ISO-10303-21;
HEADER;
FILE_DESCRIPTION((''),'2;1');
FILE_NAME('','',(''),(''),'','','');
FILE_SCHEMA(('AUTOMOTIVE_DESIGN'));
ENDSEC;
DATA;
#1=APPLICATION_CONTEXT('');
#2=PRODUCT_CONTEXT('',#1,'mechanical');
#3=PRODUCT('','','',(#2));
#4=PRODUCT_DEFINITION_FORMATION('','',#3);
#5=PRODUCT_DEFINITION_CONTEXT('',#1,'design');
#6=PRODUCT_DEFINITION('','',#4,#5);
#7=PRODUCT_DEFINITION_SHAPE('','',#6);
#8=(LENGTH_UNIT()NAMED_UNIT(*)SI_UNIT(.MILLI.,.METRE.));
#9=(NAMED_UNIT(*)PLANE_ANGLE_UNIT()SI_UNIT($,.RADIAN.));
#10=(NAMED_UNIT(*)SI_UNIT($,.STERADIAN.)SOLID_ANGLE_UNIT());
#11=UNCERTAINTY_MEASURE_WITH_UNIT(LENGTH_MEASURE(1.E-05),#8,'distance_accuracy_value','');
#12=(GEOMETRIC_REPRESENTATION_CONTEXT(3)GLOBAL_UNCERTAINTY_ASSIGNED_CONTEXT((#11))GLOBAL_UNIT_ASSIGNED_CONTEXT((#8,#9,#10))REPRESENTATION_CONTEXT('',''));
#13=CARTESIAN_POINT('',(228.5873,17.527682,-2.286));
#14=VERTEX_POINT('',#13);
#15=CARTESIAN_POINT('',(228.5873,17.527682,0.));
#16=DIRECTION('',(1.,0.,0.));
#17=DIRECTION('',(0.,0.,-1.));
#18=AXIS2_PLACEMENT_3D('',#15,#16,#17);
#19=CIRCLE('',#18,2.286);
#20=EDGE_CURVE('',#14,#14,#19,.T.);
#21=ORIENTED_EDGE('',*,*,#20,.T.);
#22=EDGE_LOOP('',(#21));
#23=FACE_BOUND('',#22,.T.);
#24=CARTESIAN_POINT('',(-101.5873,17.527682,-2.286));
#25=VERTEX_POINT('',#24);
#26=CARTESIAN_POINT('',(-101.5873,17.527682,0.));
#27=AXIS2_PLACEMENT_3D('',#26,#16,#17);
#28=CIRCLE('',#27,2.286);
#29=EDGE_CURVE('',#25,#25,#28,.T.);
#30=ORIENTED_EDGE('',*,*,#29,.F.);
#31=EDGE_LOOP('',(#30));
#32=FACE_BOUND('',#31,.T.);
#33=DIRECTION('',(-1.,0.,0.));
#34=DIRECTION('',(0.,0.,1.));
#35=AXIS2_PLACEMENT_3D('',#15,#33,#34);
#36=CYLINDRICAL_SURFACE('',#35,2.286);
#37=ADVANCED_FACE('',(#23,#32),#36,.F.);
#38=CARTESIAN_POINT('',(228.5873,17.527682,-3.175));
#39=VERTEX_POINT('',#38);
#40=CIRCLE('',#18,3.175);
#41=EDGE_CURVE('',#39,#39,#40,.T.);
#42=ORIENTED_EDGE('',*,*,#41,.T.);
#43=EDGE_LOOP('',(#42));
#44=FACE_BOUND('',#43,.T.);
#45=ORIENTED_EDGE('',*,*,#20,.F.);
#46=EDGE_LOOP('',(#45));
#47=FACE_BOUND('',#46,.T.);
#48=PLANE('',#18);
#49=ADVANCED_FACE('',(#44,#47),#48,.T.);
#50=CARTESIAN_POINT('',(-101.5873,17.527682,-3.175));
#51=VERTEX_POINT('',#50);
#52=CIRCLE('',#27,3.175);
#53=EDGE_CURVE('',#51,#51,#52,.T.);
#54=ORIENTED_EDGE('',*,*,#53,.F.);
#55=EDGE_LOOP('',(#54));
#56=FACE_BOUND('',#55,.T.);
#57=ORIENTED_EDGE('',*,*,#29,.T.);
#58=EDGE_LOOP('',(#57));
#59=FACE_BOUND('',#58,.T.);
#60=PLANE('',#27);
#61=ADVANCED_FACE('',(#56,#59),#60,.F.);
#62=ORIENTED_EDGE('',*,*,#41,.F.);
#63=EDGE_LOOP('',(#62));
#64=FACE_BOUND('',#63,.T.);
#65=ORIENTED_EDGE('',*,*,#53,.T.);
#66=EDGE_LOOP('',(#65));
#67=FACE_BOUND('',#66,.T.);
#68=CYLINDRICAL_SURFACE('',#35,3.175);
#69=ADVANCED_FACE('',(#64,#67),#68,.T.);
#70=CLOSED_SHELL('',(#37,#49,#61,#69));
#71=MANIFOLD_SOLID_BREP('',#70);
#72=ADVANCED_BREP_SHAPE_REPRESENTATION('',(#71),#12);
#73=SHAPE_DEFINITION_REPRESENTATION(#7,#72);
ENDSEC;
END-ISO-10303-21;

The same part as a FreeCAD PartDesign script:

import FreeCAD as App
import Part
import Sketcher
Q = App.Units.Quantity

doc = App.newDocument("Part")
body = doc.addObject("PartDesign::Body", "Body")

# Sketch on YZ plane
sketch1 = body.newObject("Sketcher::SketchObject", "Sketch")
sketch1.AttachmentSupport = (doc.getObject("YZ_Plane"), [""])
sketch1.MapMode = "FlatFace"
sketch1.AttachmentOffset = App.Placement(App.Vector(0, 0, 2.5 * 25.4), App.Rotation())
sketch1.addGeometry([
    Part.Circle(App.Vector(17.527682, 0, 0), App.Vector(0, 0, 1), 3.175),
    Part.Circle(App.Vector(17.527682, 0, 0), App.Vector(0, 0, 1), 2.286),
], False)
sketch1.addConstraint([
    Sketcher.Constraint("Coincident", 1, 3, 0, 3),
    Sketcher.Constraint("PointOnObject", 0, 3, -1),
    Sketcher.Constraint("Diameter", 0, Q("0.25 in")),
    Sketcher.Constraint("Diameter", 1, Q("0.18 in")),
    Sketcher.Constraint("DistanceX", -1, 1, 0, 3, 17.527682),
])
pad1 = body.newObject("PartDesign::Pad", "Pad")
pad1.Profile = sketch1
pad1.Length = Q("12.999 in")
pad1.Midplane = True

doc.recompute()
